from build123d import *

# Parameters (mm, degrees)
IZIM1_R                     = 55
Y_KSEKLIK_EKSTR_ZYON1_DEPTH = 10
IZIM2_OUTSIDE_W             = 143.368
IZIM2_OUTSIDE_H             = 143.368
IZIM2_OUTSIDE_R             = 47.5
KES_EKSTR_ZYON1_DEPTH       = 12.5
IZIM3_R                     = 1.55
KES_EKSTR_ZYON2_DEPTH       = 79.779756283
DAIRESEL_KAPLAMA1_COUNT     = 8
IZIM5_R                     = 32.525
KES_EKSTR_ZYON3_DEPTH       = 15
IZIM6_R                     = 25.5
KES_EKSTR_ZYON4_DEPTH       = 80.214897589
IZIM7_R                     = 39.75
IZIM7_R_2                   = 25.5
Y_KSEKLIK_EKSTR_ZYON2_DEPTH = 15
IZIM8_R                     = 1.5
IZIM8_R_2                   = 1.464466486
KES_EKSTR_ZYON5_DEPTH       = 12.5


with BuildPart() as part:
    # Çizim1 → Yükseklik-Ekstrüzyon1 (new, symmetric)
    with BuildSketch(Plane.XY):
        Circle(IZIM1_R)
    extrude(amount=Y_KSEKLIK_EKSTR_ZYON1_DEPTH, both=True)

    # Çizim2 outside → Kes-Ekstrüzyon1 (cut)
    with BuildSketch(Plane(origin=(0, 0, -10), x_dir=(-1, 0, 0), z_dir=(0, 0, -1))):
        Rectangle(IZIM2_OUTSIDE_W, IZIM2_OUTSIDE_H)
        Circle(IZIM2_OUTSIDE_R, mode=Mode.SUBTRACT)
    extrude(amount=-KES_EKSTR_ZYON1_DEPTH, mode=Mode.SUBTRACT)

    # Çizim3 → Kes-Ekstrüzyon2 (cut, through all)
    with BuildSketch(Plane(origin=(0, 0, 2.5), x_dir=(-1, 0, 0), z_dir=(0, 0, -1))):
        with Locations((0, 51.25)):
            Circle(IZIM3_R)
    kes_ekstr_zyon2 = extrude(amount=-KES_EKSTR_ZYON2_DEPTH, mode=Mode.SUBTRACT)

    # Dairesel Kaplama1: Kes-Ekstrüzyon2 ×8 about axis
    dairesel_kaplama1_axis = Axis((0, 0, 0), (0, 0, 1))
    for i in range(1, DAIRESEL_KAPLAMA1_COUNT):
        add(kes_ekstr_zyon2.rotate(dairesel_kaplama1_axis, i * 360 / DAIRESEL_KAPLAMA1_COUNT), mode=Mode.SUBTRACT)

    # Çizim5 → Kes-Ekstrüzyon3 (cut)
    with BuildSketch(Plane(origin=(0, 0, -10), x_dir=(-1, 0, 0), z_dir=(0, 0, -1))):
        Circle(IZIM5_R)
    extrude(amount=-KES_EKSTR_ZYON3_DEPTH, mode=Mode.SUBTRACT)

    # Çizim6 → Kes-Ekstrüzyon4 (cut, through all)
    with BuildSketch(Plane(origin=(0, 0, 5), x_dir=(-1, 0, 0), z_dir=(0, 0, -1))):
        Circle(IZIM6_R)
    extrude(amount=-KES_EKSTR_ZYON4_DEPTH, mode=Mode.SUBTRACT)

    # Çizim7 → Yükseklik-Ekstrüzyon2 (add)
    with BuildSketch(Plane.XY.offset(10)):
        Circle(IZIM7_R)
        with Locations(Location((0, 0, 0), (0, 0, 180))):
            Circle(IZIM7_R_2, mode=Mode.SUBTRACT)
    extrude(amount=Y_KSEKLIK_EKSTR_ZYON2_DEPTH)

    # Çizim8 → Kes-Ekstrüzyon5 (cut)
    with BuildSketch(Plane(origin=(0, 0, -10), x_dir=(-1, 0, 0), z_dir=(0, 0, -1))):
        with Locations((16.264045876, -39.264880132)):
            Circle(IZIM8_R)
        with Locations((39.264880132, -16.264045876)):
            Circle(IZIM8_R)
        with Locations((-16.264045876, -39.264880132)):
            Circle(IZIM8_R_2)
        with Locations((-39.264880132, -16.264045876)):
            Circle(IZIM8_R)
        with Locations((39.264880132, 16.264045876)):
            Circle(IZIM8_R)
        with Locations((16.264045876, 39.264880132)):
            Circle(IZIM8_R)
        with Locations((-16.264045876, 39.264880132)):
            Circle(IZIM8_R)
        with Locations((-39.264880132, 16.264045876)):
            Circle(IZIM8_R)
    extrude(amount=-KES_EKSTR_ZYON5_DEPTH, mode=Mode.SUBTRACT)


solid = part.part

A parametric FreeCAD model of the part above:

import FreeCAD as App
import Part
import Sketcher
from FreeCAD import Vector
Q = App.Units.Quantity


def add_polygon(sketch, points):
    """Adds a closed chain of lines whose ends are joined by coincident constraints."""
    first, n = sketch.GeometryCount, len(points)
    for a, b in zip(points, points[1:] + points[:1]):
        sketch.addGeometry(Part.LineSegment(App.Vector(*a, 0), App.Vector(*b, 0)), False)
    for i in range(n):
        sketch.addConstraint(Sketcher.Constraint("Coincident", first + i, 2, first + (i + 1) % n, 1))

doc = App.newDocument("Part")
body = doc.addObject("PartDesign::Body", "Body")

sketch1 = doc.addObject("Sketcher::SketchObject", "Sketch")
body.addObject(sketch1)
sketch1.AttachmentSupport = (doc.XY_Plane, [""])
sketch1.MapMode = "FlatFace"
sketch1.addGeometry(Part.Circle(Vector(0, 0, 0), Vector(0, 0, 1), 55), False)
sketch1.addConstraint([
    Sketcher.Constraint("Coincident", 0, 3, -1, 1),
    Sketcher.Constraint("Diameter", 0, Q("110 mm")),
])
pad1 = doc.addObject("PartDesign::Pad", "Pad")
body.addObject(pad1)
pad1.Profile = sketch1
pad1.Length = 20
pad1.Midplane = True

sketch2 = doc.addObject("Sketcher::SketchObject", "Sketch001")
body.addObject(sketch2)
sketch2.AttachmentSupport = (doc.XY_Plane, [""])
sketch2.MapMode = "FlatFace"
sketch2.AttachmentOffset = App.Placement(Vector(0, 0, -10), App.Rotation())
add_polygon(sketch2, [(72, 72), (72, -72), (-72, -72), (-72, 72)])
sketch2.addGeometry(Part.Circle(Vector(0, 0, 0), Vector(0, 0, 1), 48), False)
sketch2.addConstraint([
    Sketcher.Constraint("Vertical", 0),
    Sketcher.Constraint("Horizontal", 1),
    Sketcher.Constraint("Vertical", 2),
    Sketcher.Constraint("Horizontal", 3),
    Sketcher.Constraint("Coincident", 4, 3, -1, 1),
    Sketcher.Constraint("Symmetric", 0, 2, 2, 2, -1, 1),
    Sketcher.Constraint("Equal", 3, 0),
    Sketcher.Constraint("Diameter", 4, Q("95 mm")),
    Sketcher.Constraint("DistanceX", 1, 2, 1, 1, Q("143.368 mm")),
])
pocket1 = doc.addObject("PartDesign::Pocket", "Pocket")
body.addObject(pocket1)
pocket1.Profile = sketch2
pocket1.Length = 12.5
pocket1.Reversed = True

sketch3 = doc.addObject("Sketcher::SketchObject", "Sketch002")
body.addObject(sketch3)
sketch3.AttachmentSupport = (doc.XY_Plane, [""])
sketch3.MapMode = "FlatFace"
sketch3.AttachmentOffset = App.Placement(Vector(0, 0, 2.5), App.Rotation())
sketch3.addGeometry(Part.Circle(Vector(0, 51.2, 0), Vector(0, 0, 1), 1.6), False)
sketch3.addConstraint([
    Sketcher.Constraint("PointOnObject", 0, 3, -2),
    Sketcher.Constraint("Diameter", 0, Q("3.1 mm")),
    Sketcher.Constraint("DistanceY", -1, 1, 0, 3, Q("51.25 mm")),
])
pocket2 = doc.addObject("PartDesign::Pocket", "Pocket001")
body.addObject(pocket2)
pocket2.Profile = sketch3
pocket2.Type = "ThroughAll"
pocket2.Reversed = True
doc.recompute()

polarpattern = doc.addObject("PartDesign::PolarPattern", "PolarPattern")
body.addObject(polarpattern)
polarpattern.Originals = [pocket2]
polarpattern.Axis = (doc.Z_Axis, [""])
polarpattern.Angle = 360
polarpattern.Occurrences = 8
body.Tip = polarpattern

sketch4 = doc.addObject("Sketcher::SketchObject", "Sketch003")
body.addObject(sketch4)
sketch4.AttachmentSupport = (doc.XY_Plane, [""])
sketch4.MapMode = "FlatFace"
sketch4.AttachmentOffset = App.Placement(Vector(0, 0, -10), App.Rotation())
sketch4.addGeometry(Part.Circle(Vector(0, 0, 0), Vector(0, 0, 1), 33), False)
sketch4.addConstraint([
    Sketcher.Constraint("Coincident", 0, 3, -1, 1),
    Sketcher.Constraint("Diameter", 0, Q("65.05 mm")),
])
pocket3 = doc.addObject("PartDesign::Pocket", "Pocket002")
body.addObject(pocket3)
pocket3.Profile = sketch4
pocket3.Length = 15
pocket3.Reversed = True

sketch5 = doc.addObject("Sketcher::SketchObject", "Sketch004")
body.addObject(sketch5)
sketch5.AttachmentSupport = (doc.XY_Plane, [""])
sketch5.MapMode = "FlatFace"
sketch5.AttachmentOffset = App.Placement(Vector(0, 0, 5), App.Rotation())
sketch5.addGeometry(Part.Circle(Vector(0, 0, 0), Vector(0, 0, 1), 26), False)
sketch5.addConstraint([
    Sketcher.Constraint("Coincident", 0, 3, -1, 1),
    Sketcher.Constraint("Diameter", 0, Q("51 mm")),
])
pocket4 = doc.addObject("PartDesign::Pocket", "Pocket003")
body.addObject(pocket4)
pocket4.Profile = sketch5
pocket4.Type = "ThroughAll"
pocket4.Reversed = True

sketch6 = doc.addObject("Sketcher::SketchObject", "Sketch005")
body.addObject(sketch6)
sketch6.AttachmentSupport = (doc.XY_Plane, [""])
sketch6.MapMode = "FlatFace"
sketch6.AttachmentOffset = App.Placement(Vector(0, 0, 10), App.Rotation())
sketch6.addGeometry([
    Part.Circle(Vector(0, 0, 0), Vector(0, 0, 1), 40),
    Part.Circle(Vector(0, 0, 0), Vector(0, 0, 1), 26),
], False)
sketch6.addConstraint([
    Sketcher.Constraint("Coincident", 0, 3, -1, 1),
    Sketcher.Constraint("Coincident", 1, 3, -1, 1),
    Sketcher.Constraint("Diameter", 1, Q("51 mm")),
    Sketcher.Constraint("Diameter", 0, Q("79.5 mm")),
])
pad2 = doc.addObject("PartDesign::Pad", "Pad001")
body.addObject(pad2)
pad2.Profile = sketch6
pad2.Length = 15

sketch7 = doc.addObject("Sketcher::SketchObject", "Sketch006")
body.addObject(sketch7)
sketch7.AttachmentSupport = (doc.XY_Plane, [""])
sketch7.MapMode = "FlatFace"
sketch7.AttachmentOffset = App.Placement(Vector(0, 0, -10), App.Rotation())
sketch7.addGeometry([
    Part.Circle(Vector(-16.3, -39.3, 0), Vector(0, 0, 1), 1.5),
    Part.Circle(Vector(-39.3, -16.3, 0), Vector(0, 0, 1), 1.5),
    Part.Circle(Vector(16.3, -39.3, 0), Vector(0, 0, 1), 1.5),
    Part.Circle(Vector(39.3, -16.3, 0), Vector(0, 0, 1), 1.5),
    Part.Circle(Vector(-39.3, 16.3, 0), Vector(0, 0, 1), 1.5),
    Part.Circle(Vector(-16.3, 39.3, 0), Vector(0, 0, 1), 1.5),
    Part.Circle(Vector(16.3, 39.3, 0), Vector(0, 0, 1), 1.5),
    Part.Circle(Vector(39.3, 16.3, 0), Vector(0, 0, 1), 1.5),
], False)
sketch7.addConstraint([
    Sketcher.Constraint("Equal", 0, 1),
    Sketcher.Constraint("Equal", 1, 3),
    Sketcher.Constraint("Equal", 3, 4),
    Sketcher.Constraint("Equal", 4, 5),
    Sketcher.Constraint("Equal", 5, 6),
    Sketcher.Constraint("Equal", 6, 7),
    Sketcher.Constraint("Symmetric", 3, 3, 4, 3, -1, 1),
    Sketcher.Constraint("Symmetric", 2, 3, 5, 3, -1, 1),
    Sketcher.Constraint("Symmetric", 0, 3, 6, 3, -1, 1),
    Sketcher.Constraint("Symmetric", 1, 3, 7, 3, -1, 1),
    Sketcher.Constraint("Symmetric", 0, 3, 2, 3, -2),
    Sketcher.Constraint("Symmetric", 1, 3, 3, 3, -2),
    Sketcher.Constraint("Diameter", 0, Q("3 mm")),
    Sketcher.Constraint("Diameter", 2, Q("2.928933 mm")),
    Sketcher.Constraint("DistanceY", 0, 3, -1, 1, Q("39.26488 mm")),
    Sketcher.Constraint("DistanceX", 1, 3, -1, 1, Q("39.26488 mm")),
    Sketcher.Constraint("DistanceX", 0, 3, 2, 3, Q("32.528092 mm")),
    Sketcher.Constraint("DistanceY", 1, 3, 4, 3, Q("32.528092 mm")),
])
pocket5 = doc.addObject("PartDesign::Pocket", "Pocket004")
body.addObject(pocket5)
pocket5.Profile = sketch7
pocket5.Length = 12.5
pocket5.Reversed = True

doc.recompute()
